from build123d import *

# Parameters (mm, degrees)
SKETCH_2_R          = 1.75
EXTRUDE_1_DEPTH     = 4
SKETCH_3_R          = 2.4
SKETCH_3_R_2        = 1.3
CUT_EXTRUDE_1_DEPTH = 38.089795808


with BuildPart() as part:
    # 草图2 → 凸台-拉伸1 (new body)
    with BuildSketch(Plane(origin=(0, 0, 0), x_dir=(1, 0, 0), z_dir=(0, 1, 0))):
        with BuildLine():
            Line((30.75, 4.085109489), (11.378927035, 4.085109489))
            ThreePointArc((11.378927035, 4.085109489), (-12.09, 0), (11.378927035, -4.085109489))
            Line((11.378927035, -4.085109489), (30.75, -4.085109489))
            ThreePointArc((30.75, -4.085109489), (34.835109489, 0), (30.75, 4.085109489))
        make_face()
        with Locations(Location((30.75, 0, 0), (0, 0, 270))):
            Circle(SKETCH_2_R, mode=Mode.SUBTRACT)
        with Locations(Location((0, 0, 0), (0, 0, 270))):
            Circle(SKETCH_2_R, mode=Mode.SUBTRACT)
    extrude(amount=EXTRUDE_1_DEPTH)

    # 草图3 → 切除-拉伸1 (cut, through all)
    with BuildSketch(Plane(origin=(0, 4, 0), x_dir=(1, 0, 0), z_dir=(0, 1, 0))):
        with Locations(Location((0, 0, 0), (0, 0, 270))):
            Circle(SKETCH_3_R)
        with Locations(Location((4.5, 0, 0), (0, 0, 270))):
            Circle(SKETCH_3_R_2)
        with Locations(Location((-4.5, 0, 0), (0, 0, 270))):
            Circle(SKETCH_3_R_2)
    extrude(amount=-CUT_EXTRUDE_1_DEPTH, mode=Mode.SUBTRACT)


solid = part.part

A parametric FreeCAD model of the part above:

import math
import FreeCAD as App
import Part
import Sketcher

V = App.Vector
Q = App.Units.Quantity

doc = App.newDocument("Part")
body = doc.addObject("PartDesign::Body", "Body")

# Sketch on XZ plane
sketch1 = body.newObject("Sketcher::SketchObject", "Sketch")
sketch1.AttachmentSupport = (doc.getObject("XZ_Plane"), [""])
sketch1.MapMode = "FlatFace"
sketch1.addGeometry([
    Part.LineSegment(V(30.8, -4.1, 0), V(11.4, -4.1, 0)),  # 0
    Part.ArcOfCircle(Part.Circle(V(0, 0, 0), V(0, 0, 1), 12.1), math.radians(20), math.radians(340)),  # 1
    Part.LineSegment(V(11.4, 4.1, 0), V(30.8, 4.1, 0)),  # 2
    Part.ArcOfCircle(Part.Circle(V(30.8, 0, 0), V(0, 0, 1), 4.1), math.radians(-90), math.radians(90)),  # 3
    Part.Circle(V(0, 0, 0), V(0, 0, 1), 1.8),  # 4
    Part.Circle(V(30.8, 0, 0), V(0, 0, 1), 1.8),  # 5
], False)
sketch1.addConstraint([
    Sketcher.Constraint("Coincident", 0, 2, 1, 2),
    Sketcher.Constraint("Coincident", 1, 1, 2, 1),
    Sketcher.Constraint("Tangent", 2, 2, 3, 2),
    Sketcher.Constraint("Tangent", 3, 1, 0, 1),
    Sketcher.Constraint("Horizontal", 0),
    Sketcher.Constraint("Horizontal", 2),
    Sketcher.Constraint("Coincident", 1, 3, -1, 1),
    Sketcher.Constraint("Coincident", 4, 3, -1, 1),
    Sketcher.Constraint("Coincident", 5, 3, 3, 3),
    Sketcher.Constraint("Equal", 4, 5),
    Sketcher.Constraint("PointOnObject", 3, 3, -1),
    Sketcher.Constraint("Diameter", 4, Q("3.5 mm")),
    Sketcher.Constraint("Radius", 1, Q("12.09 mm")),
    Sketcher.Constraint("DistanceX", -1, 1, 3, 3, Q("30.75 mm")),
    Sketcher.Constraint("Radius", 3, Q("4.085109 mm")),
])
pad1 = body.newObject("PartDesign::Pad", "Pad")
pad1.Profile = sketch1
pad1.Length = 4
pad1.Reversed = True

# Sketch on XZ plane
sketch2 = body.newObject("Sketcher::SketchObject", "Sketch001")
sketch2.AttachmentSupport = (doc.getObject("XZ_Plane"), [""])
sketch2.MapMode = "FlatFace"
sketch2.AttachmentOffset = App.Placement(V(0, 0, -4), App.Rotation())
sketch2.addGeometry([
    Part.Circle(V(0, 0, 0), V(0, 0, 1), 2.4),
    Part.Circle(V(4.5, 0, 0), V(0, 0, 1), 1.3),
    Part.Circle(V(-4.5, 0, 0), V(0, 0, 1), 1.3),
], False)
sketch2.addConstraint([
    Sketcher.Constraint("Coincident", 0, 3, -1, 1),
    Sketcher.Constraint("Equal", 1, 2),
    Sketcher.Constraint("Symmetric", 1, 3, 2, 3, -1, 1),
    Sketcher.Constraint("PointOnObject", 1, 3, -1),
    Sketcher.Constraint("Diameter", 0, Q("4.8 mm")),
    Sketcher.Constraint("Diameter", 1, Q("2.6 mm")),
    Sketcher.Constraint("DistanceX", 2, 3, 1, 3, Q("9 mm")),
])
pocket1 = body.newObject("PartDesign::Pocket", "Pocket")
pocket1.Profile = sketch2
pocket1.Type = "ThroughAll"
pocket1.Reversed = True

doc.recompute()
